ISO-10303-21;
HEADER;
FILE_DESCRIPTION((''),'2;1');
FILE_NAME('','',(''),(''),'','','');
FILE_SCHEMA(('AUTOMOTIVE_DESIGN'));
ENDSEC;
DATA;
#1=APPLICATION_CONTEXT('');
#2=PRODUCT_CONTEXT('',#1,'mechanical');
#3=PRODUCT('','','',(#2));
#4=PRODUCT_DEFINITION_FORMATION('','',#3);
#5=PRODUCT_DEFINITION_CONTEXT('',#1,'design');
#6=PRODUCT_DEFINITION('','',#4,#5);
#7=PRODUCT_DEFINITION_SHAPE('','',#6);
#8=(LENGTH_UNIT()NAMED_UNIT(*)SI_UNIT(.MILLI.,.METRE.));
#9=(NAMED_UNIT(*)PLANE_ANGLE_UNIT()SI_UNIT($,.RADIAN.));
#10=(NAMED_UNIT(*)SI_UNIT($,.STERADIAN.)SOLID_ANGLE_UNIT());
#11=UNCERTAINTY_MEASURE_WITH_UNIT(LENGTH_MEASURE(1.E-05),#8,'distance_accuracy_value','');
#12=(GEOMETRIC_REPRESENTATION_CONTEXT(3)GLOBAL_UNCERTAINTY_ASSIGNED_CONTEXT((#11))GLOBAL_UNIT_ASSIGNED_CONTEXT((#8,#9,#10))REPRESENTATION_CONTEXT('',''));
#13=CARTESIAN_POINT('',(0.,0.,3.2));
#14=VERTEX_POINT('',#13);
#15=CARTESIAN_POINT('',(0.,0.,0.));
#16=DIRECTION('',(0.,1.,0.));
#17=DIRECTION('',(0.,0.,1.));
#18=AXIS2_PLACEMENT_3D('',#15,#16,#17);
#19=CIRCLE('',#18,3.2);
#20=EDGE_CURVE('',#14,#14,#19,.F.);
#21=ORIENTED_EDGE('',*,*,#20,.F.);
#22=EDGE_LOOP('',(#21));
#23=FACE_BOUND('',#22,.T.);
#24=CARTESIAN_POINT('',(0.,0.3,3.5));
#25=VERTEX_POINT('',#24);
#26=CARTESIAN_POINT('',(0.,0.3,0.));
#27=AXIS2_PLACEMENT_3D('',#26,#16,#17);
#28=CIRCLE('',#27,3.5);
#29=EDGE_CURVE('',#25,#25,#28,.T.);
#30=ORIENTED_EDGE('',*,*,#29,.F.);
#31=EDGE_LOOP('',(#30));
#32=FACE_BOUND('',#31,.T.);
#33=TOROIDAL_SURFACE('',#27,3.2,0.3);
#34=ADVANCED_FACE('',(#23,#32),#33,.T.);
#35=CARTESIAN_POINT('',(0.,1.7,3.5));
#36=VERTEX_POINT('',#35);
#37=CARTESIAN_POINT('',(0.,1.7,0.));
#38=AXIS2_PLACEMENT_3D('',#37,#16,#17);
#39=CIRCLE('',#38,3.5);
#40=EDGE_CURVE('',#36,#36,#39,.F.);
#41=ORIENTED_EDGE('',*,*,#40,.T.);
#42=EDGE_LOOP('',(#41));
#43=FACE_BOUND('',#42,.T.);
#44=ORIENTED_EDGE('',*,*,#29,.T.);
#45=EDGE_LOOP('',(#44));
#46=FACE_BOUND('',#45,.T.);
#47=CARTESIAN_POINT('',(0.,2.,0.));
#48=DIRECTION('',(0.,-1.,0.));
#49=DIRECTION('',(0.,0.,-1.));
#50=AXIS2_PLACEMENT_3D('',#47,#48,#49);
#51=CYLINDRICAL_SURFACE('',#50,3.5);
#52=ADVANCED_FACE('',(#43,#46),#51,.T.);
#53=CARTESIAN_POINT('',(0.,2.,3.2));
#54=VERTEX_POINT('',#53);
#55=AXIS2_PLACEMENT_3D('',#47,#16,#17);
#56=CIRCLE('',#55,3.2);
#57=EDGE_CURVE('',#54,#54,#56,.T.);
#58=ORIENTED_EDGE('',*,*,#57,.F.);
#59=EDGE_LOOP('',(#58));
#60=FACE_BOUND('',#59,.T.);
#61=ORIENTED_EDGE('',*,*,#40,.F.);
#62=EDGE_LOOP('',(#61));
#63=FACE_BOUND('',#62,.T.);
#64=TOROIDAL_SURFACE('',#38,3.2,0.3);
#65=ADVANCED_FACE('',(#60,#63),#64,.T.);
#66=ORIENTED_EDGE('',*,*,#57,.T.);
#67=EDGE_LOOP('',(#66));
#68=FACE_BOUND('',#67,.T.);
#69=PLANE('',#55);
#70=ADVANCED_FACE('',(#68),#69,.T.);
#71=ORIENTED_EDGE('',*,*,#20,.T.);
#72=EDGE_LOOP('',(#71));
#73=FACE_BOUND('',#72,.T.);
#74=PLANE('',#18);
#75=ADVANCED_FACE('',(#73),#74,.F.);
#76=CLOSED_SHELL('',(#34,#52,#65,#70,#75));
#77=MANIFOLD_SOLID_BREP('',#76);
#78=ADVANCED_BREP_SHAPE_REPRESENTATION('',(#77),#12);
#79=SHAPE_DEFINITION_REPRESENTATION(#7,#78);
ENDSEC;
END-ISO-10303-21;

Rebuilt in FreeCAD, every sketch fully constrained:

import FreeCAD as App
import Part
import Sketcher

V = App.Vector


def edges_at(feature, points):
    """Names of the edges that pass closest to the given points."""
    edges = feature.Shape.Edges
    near = lambda p: min(range(len(edges)), key=lambda i: edges[i].distToShape(Part.Vertex(*p))[0])
    return sorted({f"Edge{near(p) + 1}" for p in points})

doc = App.newDocument("Part")
body = doc.addObject("PartDesign::Body", "Body")

# Sketch on XZ plane
sketch1 = body.newObject("Sketcher::SketchObject", "Sketch")
sketch1.AttachmentSupport = (doc.getObject("XZ_Plane"), [""])
sketch1.MapMode = "FlatFace"
sketch1.addGeometry(Part.Circle(V(0, 0, 0), V(0, 0, 1), 3.5), False)
sketch1.addConstraint([
    Sketcher.Constraint("Coincident", 0, 3, -1, 1),
    Sketcher.Constraint("Diameter", 0, 7.0),
])
pad1 = body.newObject("PartDesign::Pad", "Pad")
pad1.Profile = sketch1
pad1.Length = 2
pad1.Reversed = True
doc.recompute()

fillet = body.newObject("PartDesign::Fillet", "Fillet")
fillet.Base = (pad1, edges_at(pad1, [(-3.5, 0, 0), (-3.5, 2, 0)]))
fillet.Radius = 0.3

doc.recompute()
